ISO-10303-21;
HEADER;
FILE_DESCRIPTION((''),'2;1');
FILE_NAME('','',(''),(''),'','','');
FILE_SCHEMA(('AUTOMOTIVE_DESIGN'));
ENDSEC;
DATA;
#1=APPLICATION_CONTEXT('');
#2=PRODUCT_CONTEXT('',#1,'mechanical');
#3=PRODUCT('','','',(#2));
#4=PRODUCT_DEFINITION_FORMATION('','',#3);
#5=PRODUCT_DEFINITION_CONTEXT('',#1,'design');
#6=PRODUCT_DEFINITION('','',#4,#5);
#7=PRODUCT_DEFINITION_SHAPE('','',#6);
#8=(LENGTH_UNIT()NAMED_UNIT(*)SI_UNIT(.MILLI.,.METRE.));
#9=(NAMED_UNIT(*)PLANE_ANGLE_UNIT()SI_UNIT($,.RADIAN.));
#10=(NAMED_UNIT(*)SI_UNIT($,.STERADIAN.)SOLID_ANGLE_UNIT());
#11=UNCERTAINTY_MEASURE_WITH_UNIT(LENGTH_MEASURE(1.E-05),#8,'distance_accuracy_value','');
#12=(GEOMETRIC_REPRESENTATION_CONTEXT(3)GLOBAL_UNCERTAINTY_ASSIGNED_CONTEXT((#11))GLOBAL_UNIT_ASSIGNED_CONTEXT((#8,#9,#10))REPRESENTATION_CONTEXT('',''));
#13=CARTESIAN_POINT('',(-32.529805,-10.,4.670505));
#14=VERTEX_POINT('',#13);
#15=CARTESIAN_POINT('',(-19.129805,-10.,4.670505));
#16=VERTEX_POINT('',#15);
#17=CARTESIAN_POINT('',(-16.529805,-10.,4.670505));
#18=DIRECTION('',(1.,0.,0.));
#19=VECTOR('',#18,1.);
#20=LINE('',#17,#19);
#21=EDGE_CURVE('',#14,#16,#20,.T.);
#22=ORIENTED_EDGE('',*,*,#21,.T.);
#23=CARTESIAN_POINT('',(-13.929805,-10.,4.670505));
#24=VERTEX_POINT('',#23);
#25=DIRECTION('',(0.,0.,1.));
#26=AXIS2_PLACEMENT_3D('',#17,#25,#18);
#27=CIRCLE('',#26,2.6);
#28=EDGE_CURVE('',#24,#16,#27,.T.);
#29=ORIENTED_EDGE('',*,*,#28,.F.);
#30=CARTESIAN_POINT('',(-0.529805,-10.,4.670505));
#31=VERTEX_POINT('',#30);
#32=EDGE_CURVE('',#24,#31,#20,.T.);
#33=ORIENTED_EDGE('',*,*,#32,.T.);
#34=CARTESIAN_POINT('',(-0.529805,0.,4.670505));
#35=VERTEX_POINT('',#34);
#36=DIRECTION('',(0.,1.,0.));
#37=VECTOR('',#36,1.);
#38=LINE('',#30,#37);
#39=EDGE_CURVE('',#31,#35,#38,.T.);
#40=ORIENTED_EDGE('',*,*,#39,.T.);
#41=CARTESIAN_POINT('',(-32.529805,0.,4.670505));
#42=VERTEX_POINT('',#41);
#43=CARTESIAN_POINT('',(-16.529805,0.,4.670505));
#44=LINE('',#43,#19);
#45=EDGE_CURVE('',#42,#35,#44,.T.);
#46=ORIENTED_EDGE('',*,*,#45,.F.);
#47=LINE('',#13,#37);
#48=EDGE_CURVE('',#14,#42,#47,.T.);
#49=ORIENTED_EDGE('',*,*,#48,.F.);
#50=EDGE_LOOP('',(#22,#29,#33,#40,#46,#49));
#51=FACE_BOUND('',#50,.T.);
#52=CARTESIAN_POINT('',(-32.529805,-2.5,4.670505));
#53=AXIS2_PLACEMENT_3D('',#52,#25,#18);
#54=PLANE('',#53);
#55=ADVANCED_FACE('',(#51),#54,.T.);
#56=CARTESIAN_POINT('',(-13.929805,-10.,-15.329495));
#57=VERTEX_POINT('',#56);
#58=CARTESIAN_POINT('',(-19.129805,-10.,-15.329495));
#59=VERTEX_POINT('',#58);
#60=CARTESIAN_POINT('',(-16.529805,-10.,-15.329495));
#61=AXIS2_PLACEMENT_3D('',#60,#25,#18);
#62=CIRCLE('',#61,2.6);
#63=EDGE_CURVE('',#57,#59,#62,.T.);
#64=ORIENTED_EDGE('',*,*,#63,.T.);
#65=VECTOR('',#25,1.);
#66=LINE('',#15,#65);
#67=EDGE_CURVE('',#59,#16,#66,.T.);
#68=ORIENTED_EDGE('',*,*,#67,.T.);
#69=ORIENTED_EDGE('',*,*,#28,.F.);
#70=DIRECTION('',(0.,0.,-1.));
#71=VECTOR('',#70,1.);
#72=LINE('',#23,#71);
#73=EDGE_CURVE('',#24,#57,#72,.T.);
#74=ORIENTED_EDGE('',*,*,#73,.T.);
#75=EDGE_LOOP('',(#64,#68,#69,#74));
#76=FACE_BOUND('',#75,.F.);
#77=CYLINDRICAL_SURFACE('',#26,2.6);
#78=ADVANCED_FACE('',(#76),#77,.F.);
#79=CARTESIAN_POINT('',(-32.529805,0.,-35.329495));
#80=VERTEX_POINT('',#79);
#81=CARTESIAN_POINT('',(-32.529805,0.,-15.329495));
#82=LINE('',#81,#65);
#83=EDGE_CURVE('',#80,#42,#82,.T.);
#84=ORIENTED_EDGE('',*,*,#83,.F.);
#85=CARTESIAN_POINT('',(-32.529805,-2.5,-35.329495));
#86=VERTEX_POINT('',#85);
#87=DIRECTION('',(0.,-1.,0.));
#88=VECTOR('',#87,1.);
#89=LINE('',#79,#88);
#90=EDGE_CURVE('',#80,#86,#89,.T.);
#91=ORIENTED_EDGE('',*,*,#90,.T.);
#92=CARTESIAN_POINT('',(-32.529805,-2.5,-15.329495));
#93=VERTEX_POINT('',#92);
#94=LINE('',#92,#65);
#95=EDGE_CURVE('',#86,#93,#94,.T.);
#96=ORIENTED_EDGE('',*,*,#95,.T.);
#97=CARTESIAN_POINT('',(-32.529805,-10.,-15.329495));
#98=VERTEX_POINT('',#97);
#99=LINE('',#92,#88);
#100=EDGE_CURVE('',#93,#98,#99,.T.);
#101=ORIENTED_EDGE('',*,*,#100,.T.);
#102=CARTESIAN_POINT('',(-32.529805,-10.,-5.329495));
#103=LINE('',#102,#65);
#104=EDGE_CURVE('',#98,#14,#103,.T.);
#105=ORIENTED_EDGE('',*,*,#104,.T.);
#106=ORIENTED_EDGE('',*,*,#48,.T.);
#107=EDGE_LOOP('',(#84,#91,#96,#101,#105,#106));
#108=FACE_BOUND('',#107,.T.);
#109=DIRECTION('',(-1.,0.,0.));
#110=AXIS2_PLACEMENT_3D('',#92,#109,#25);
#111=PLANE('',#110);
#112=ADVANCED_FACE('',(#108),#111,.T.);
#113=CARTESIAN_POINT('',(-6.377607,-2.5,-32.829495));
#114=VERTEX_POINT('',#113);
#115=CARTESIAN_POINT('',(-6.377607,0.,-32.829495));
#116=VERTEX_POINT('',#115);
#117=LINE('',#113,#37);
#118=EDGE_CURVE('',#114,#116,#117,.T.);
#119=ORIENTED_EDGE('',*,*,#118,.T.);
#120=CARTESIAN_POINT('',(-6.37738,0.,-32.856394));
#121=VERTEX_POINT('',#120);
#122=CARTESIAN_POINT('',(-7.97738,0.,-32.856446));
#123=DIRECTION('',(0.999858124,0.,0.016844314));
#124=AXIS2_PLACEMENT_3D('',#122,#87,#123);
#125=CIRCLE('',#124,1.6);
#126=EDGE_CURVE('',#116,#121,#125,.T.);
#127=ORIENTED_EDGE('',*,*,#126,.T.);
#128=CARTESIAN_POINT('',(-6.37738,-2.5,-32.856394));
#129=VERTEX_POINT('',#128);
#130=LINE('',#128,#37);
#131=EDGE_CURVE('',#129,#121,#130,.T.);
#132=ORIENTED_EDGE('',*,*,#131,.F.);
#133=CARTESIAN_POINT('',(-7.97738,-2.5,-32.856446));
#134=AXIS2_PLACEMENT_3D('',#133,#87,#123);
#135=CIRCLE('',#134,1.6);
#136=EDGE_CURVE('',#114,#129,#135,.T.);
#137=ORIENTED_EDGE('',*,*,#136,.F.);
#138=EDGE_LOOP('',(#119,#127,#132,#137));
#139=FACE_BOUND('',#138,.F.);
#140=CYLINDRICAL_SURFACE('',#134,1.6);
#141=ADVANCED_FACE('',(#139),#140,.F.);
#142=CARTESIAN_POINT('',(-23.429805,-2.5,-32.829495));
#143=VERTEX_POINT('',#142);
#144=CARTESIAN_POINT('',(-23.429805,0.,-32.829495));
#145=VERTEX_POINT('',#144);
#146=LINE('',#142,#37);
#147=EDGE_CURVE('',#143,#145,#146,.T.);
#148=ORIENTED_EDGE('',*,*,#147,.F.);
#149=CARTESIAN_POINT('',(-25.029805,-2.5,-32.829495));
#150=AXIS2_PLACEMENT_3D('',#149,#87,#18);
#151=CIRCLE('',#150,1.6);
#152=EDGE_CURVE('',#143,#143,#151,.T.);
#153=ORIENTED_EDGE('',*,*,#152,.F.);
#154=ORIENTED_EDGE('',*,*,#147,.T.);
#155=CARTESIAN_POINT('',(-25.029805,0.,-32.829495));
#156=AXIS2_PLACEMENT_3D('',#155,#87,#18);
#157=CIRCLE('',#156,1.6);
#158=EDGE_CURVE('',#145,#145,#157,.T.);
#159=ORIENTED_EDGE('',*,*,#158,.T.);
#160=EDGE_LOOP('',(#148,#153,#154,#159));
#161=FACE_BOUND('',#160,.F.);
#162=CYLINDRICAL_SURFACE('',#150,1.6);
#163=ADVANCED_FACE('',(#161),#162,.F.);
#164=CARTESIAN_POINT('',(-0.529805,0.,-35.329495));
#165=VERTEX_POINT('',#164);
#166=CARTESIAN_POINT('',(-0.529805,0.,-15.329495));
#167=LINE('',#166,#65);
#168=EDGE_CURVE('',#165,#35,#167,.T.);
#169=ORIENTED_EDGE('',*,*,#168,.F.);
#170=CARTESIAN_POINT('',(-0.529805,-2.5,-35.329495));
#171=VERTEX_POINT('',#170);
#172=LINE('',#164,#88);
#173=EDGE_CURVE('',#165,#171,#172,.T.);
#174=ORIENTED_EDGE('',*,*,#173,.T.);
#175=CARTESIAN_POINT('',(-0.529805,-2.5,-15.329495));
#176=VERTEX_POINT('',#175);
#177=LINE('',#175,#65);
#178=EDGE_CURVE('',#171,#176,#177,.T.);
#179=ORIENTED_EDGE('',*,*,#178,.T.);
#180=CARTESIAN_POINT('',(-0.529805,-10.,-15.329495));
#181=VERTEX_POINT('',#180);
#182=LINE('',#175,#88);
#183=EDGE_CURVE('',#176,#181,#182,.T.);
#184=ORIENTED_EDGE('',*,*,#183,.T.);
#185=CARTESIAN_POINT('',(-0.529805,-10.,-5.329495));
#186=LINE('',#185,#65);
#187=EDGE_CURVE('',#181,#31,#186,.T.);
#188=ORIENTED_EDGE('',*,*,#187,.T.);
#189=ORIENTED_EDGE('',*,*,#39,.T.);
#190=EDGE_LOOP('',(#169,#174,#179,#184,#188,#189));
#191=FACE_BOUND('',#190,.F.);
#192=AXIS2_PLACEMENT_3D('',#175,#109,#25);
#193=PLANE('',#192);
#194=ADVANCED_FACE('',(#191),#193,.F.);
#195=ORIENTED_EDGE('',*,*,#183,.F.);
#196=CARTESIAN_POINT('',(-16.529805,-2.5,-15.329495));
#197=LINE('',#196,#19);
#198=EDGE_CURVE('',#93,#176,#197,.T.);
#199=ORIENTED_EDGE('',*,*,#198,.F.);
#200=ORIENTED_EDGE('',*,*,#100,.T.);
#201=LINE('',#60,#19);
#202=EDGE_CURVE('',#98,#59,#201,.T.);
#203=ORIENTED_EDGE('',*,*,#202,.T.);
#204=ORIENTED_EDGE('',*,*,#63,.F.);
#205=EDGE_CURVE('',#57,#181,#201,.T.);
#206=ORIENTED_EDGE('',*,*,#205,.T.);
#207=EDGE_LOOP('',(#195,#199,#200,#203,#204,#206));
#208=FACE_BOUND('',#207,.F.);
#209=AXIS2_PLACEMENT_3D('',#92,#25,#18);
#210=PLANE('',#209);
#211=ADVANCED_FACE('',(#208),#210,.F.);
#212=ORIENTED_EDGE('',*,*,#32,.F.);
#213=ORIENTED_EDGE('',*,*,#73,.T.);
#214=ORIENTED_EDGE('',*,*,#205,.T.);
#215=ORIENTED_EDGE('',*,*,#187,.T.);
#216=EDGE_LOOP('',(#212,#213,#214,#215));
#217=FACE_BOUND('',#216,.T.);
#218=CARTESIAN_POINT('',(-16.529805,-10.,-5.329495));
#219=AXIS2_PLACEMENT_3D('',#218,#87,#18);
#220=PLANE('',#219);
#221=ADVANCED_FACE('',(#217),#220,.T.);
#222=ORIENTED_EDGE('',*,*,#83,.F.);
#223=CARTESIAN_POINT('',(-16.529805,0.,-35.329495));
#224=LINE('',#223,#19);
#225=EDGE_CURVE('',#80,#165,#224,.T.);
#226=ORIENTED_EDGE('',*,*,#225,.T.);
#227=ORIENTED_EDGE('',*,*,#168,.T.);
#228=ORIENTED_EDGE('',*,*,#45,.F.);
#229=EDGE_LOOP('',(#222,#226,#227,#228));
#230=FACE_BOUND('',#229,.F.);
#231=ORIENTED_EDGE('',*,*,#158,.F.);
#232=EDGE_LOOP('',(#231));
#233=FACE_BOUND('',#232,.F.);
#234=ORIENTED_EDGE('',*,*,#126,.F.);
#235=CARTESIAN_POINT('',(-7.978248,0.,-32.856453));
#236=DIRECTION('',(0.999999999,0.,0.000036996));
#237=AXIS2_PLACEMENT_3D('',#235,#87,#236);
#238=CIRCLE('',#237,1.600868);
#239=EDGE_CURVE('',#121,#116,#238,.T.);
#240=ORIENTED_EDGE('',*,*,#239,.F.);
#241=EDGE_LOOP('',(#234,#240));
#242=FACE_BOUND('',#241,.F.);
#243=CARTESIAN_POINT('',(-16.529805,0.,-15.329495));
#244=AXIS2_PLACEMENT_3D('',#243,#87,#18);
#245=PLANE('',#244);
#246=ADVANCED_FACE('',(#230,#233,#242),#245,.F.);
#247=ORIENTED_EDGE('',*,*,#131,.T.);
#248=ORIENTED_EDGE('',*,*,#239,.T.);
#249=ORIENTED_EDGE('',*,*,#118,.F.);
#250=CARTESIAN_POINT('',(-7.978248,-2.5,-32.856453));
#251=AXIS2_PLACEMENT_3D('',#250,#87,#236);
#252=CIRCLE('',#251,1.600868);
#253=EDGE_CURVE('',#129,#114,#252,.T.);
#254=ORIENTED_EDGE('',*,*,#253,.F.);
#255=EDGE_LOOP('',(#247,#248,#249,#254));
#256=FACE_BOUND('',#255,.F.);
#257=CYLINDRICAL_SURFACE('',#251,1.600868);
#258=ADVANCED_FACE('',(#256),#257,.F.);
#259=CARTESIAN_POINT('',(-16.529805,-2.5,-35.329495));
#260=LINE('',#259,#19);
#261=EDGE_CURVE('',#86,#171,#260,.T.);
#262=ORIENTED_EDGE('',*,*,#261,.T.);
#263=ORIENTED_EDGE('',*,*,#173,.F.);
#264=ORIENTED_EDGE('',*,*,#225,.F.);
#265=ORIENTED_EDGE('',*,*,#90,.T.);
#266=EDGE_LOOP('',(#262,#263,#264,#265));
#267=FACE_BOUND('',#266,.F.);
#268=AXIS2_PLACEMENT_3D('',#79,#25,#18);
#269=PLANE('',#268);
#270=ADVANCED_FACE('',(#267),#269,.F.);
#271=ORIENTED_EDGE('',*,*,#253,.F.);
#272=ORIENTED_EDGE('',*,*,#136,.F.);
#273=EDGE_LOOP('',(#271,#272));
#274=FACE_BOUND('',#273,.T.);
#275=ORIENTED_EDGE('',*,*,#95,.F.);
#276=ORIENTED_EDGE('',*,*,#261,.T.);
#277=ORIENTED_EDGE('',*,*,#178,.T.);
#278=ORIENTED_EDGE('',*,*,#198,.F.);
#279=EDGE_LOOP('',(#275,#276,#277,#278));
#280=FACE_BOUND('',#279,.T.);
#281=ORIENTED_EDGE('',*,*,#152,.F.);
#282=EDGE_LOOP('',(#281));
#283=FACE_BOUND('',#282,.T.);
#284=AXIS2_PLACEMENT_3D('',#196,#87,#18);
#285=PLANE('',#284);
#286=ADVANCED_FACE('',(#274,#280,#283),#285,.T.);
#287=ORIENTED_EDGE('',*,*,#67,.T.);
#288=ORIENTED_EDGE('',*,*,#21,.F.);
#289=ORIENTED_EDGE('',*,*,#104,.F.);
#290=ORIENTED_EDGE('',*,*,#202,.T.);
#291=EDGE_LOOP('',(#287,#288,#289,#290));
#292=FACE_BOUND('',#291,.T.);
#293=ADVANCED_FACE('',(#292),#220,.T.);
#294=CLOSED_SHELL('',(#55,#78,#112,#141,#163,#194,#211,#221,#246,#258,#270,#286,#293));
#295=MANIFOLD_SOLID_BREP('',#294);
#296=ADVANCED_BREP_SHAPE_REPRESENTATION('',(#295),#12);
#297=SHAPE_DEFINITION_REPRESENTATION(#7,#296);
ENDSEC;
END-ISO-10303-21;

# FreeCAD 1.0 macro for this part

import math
import FreeCAD as App
import Part
import Sketcher
from FreeCAD import Vector


def add_polygon(sketch, points):
    """Adds a closed chain of lines whose ends are joined by coincident constraints."""
    first, n = sketch.GeometryCount, len(points)
    for a, b in zip(points, points[1:] + points[:1]):
        sketch.addGeometry(Part.LineSegment(App.Vector(*a, 0), App.Vector(*b, 0)), False)
    for i in range(n):
        sketch.addConstraint(Sketcher.Constraint("Coincident", first + i, 2, first + (i + 1) % n, 1))

doc = App.newDocument("Part")
body = doc.addObject("PartDesign::Body", "Body")

# Sketch on XZ plane
sketch1 = doc.addObject("Sketcher::SketchObject", "Sketch")
body.addObject(sketch1)
sketch1.AttachmentSupport = (doc.XZ_Plane, [""])
sketch1.MapMode = "FlatFace"
add_polygon(sketch1, [(-32.529805, 4.670505), (-32.529805, -35.329495), (-0.529805, -35.329495), (-0.529805, 4.670505)])  # lines 0-3
sketch1.addConstraint([
    Sketcher.Constraint("Vertical", 0),
    Sketcher.Constraint("Horizontal", 1),
    Sketcher.Constraint("Vertical", 2),
    Sketcher.Constraint("Horizontal", 3),
    Sketcher.Constraint("DistanceX", 1, 1, 1, 2, 32.0),
    Sketcher.Constraint("DistanceY", 0, 2, 0, 1, 40.0),
    Sketcher.Constraint("DistanceX", 0, 2, -1, 1, 32.529805),
    Sketcher.Constraint("DistanceY", 0, 2, -1, 1, 35.329495),
])
pad1 = doc.addObject("PartDesign::Pad", "Pad")
body.addObject(pad1)
pad1.Profile = sketch1
pad1.Length = 2.5

# Sketch on XZ plane
sketch2 = doc.addObject("Sketcher::SketchObject", "Sketch001")
body.addObject(sketch2)
sketch2.AttachmentSupport = (doc.XZ_Plane, [""])
sketch2.MapMode = "FlatFace"
sketch2.AttachmentOffset = App.Placement(Vector(0, 0, 2.5), App.Rotation())
add_polygon(sketch2, [(-32.529805, 4.670505), (-32.529805, -15.329495), (-0.529805, -15.329495), (-0.529805, 4.670505)])  # lines 0-3
sketch2.addConstraint([
    Sketcher.Constraint("Vertical", 0),
    Sketcher.Constraint("Horizontal", 1),
    Sketcher.Constraint("Vertical", 2),
    Sketcher.Constraint("Horizontal", 3),
    Sketcher.Constraint("DistanceX", 1, 1, 1, 2, 32.0),
    Sketcher.Constraint("DistanceY", 0, 2, 0, 1, 20.0),
    Sketcher.Constraint("DistanceX", 0, 2, -1, 1, 32.529805),
    Sketcher.Constraint("DistanceY", 0, 2, -1, 1, 15.329495),
])
pad2 = doc.addObject("PartDesign::Pad", "Pad001")
body.addObject(pad2)
pad2.Profile = sketch2
pad2.Length = 7.5

# Sketch on XZ plane
sketch3 = doc.addObject("Sketcher::SketchObject", "Sketch002")
body.addObject(sketch3)
sketch3.AttachmentSupport = (doc.XZ_Plane, [""])
sketch3.MapMode = "FlatFace"
sketch3.AttachmentOffset = App.Placement(Vector(0, 0, 2.5), App.Rotation())
sketch3.addGeometry([
    Part.Circle(Vector(-25.029805, -32.829495, 0), Vector(0, 0, 1), 1.6),
    Part.ArcOfCircle(Part.Circle(Vector(-7.978248, -32.856453, 0), Vector(0, 0, 1), 1.600868), math.radians(0.00212), math.radians(0.964893)),
    Part.ArcOfCircle(Part.Circle(Vector(-7.97738, -32.856446, 0), Vector(0, 0, 1), 1.6), math.radians(0.965154), math.radians(360.001859)),
], False)
sketch3.addConstraint([
    Sketcher.Constraint("Coincident", 1, 1, 2, 2),
    Sketcher.Constraint("Coincident", 2, 1, 1, 2),
    Sketcher.Constraint("Equal", 0, 2),
    Sketcher.Constraint("Horizontal", 0, 3, 2, 1),
    Sketcher.Constraint("Diameter", 0, 3.2),
    Sketcher.Constraint("Radius", 1, 1.600868),
    Sketcher.Constraint("DistanceY", 1, 1, 0, 3, 0.026899),
    Sketcher.Constraint("DistanceX", 0, 3, 2, 1, 18.652198),
    Sketcher.Constraint("DistanceX", 2, 3, -1, 1, 7.97738),
    Sketcher.Constraint("DistanceY", 1, 3, 0, 3, 0.026958),
    Sketcher.Constraint("DistanceY", 0, 3, -1, 1, 32.829495),
])
pocket1 = doc.addObject("PartDesign::Pocket", "Pocket")
body.addObject(pocket1)
pocket1.Profile = sketch3
pocket1.Type = "ThroughAll"

# Sketch on XY plane
sketch4 = doc.addObject("Sketcher::SketchObject", "Sketch003")
body.addObject(sketch4)
sketch4.AttachmentSupport = (doc.XY_Plane, [""])
sketch4.MapMode = "FlatFace"
sketch4.AttachmentOffset = App.Placement(Vector(0, 0, 4.670505), App.Rotation())
sketch4.addGeometry(Part.Circle(Vector(-16.529805, -10, 0), Vector(0, 0, 1), 2.6), False)
sketch4.addConstraint([
    Sketcher.Constraint("Diameter", 0, 5.2),
    Sketcher.Constraint("DistanceY", 0, 3, -1, 1, 10.0),
    Sketcher.Constraint("DistanceX", 0, 3, -1, 1, 16.529805),
])
pocket2 = doc.addObject("PartDesign::Pocket", "Pocket001")
body.addObject(pocket2)
pocket2.Profile = sketch4
pocket2.Type = "ThroughAll"

doc.recompute()
